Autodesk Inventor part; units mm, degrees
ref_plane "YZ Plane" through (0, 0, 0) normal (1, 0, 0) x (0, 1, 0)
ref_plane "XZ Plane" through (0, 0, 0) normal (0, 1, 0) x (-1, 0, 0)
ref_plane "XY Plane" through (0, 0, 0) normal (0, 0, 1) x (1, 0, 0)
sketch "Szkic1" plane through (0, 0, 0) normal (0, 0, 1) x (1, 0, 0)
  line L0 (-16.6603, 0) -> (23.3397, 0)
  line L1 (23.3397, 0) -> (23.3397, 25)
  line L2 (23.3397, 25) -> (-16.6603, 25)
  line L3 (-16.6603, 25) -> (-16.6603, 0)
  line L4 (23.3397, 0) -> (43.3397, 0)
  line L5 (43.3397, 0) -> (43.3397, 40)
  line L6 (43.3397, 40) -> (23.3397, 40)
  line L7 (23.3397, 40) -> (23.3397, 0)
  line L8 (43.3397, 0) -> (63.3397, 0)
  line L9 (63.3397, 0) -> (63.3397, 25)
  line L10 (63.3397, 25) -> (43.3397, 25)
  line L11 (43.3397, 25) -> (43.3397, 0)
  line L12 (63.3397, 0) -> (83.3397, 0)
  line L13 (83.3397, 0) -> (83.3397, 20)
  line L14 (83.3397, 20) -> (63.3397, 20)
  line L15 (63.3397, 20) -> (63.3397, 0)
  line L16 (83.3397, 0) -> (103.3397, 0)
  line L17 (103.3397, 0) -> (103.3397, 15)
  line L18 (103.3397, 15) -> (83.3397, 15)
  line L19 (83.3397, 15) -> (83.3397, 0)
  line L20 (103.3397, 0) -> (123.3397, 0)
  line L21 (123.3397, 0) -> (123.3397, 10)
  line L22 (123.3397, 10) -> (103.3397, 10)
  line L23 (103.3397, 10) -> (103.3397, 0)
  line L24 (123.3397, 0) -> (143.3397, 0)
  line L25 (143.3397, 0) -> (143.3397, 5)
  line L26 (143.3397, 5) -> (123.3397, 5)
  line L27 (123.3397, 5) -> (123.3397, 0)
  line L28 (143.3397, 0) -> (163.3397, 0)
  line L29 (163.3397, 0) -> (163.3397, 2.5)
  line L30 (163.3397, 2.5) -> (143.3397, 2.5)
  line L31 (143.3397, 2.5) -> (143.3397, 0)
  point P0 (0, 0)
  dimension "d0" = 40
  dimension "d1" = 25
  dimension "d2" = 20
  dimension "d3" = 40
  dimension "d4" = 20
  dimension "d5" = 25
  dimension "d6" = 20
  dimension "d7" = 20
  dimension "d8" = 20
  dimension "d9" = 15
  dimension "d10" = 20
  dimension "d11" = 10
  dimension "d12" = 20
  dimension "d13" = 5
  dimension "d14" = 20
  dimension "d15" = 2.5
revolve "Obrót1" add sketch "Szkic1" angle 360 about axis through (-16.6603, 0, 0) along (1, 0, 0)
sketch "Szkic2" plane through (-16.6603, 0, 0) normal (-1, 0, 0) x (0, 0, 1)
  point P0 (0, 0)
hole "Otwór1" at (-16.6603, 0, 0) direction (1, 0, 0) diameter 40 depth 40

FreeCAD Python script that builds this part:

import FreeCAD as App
import Part
import Sketcher

doc = App.newDocument("Part")
body = doc.addObject("PartDesign::Body", "Body")

sketch1 = body.newObject("Sketcher::SketchObject", "Sketch")
sketch1.AttachmentSupport = (doc.getObject("XY_Plane"), [""])
sketch1.MapMode = "FlatFace"
sketch1.addGeometry([
    Part.LineSegment(App.Vector(-16.7, 25, 0), App.Vector(-16.7, 0, 0)),
    Part.LineSegment(App.Vector(-16.7, 0, 0), App.Vector(163.3, 0, 0)),
    Part.LineSegment(App.Vector(163.3, 0, 0), App.Vector(163.3, 2.5, 0)),
    Part.LineSegment(App.Vector(163.3, 2.5, 0), App.Vector(143.3, 2.5, 0)),
    Part.LineSegment(App.Vector(143.3, 2.5, 0), App.Vector(143.3, 5, 0)),
    Part.LineSegment(App.Vector(143.3, 5, 0), App.Vector(123.3, 5, 0)),
    Part.LineSegment(App.Vector(123.3, 5, 0), App.Vector(123.3, 10, 0)),
    Part.LineSegment(App.Vector(123.3, 10, 0), App.Vector(103.3, 10, 0)),
    Part.LineSegment(App.Vector(103.3, 10, 0), App.Vector(103.3, 15, 0)),
    Part.LineSegment(App.Vector(103.3, 15, 0), App.Vector(83.3, 15, 0)),
    Part.LineSegment(App.Vector(83.3, 15, 0), App.Vector(83.3, 20, 0)),
    Part.LineSegment(App.Vector(83.3, 20, 0), App.Vector(63.3, 20, 0)),
    Part.LineSegment(App.Vector(63.3, 20, 0), App.Vector(63.3, 25, 0)),
    Part.LineSegment(App.Vector(63.3, 25, 0), App.Vector(43.3, 25, 0)),
    Part.LineSegment(App.Vector(43.3, 25, 0), App.Vector(43.3, 40, 0)),
    Part.LineSegment(App.Vector(43.3, 40, 0), App.Vector(23.3, 40, 0)),
    Part.LineSegment(App.Vector(23.3, 40, 0), App.Vector(23.3, 25, 0)),
    Part.LineSegment(App.Vector(23.3, 25, 0), App.Vector(-16.7, 25, 0)),
], False)
sketch1.addConstraint([
    Sketcher.Constraint("Coincident", 0, 2, 1, 1),
    Sketcher.Constraint("Coincident", 1, 2, 2, 1),
    Sketcher.Constraint("Coincident", 2, 2, 3, 1),
    Sketcher.Constraint("Coincident", 3, 2, 4, 1),
    Sketcher.Constraint("Coincident", 4, 2, 5, 1),
    Sketcher.Constraint("Coincident", 5, 2, 6, 1),
    Sketcher.Constraint("Coincident", 6, 2, 7, 1),
    Sketcher.Constraint("Coincident", 7, 2, 8, 1),
    Sketcher.Constraint("Coincident", 8, 2, 9, 1),
    Sketcher.Constraint("Coincident", 9, 2, 10, 1),
    Sketcher.Constraint("Coincident", 10, 2, 11, 1),
    Sketcher.Constraint("Coincident", 11, 2, 12, 1),
    Sketcher.Constraint("Coincident", 12, 2, 13, 1),
    Sketcher.Constraint("Coincident", 13, 2, 14, 1),
    Sketcher.Constraint("Coincident", 14, 2, 15, 1),
    Sketcher.Constraint("Coincident", 15, 2, 16, 1),
    Sketcher.Constraint("Coincident", 16, 2, 17, 1),
    Sketcher.Constraint("Coincident", 17, 2, 0, 1),
    Sketcher.Constraint("Vertical", 0),
    Sketcher.Constraint("Horizontal", 1),
    Sketcher.Constraint("Vertical", 2),
    Sketcher.Constraint("Horizontal", 3),
    Sketcher.Constraint("Vertical", 4),
    Sketcher.Constraint("Horizontal", 5),
    Sketcher.Constraint("Vertical", 6),
    Sketcher.Constraint("Horizontal", 7),
    Sketcher.Constraint("Vertical", 8),
    Sketcher.Constraint("Horizontal", 9),
    Sketcher.Constraint("Vertical", 10),
    Sketcher.Constraint("Horizontal", 11),
    Sketcher.Constraint("Vertical", 12),
    Sketcher.Constraint("Horizontal", 13),
    Sketcher.Constraint("Vertical", 14),
    Sketcher.Constraint("Horizontal", 15),
    Sketcher.Constraint("Vertical", 16),
    Sketcher.Constraint("Horizontal", 17),
    Sketcher.Constraint("PointOnObject", 0, 2, -1),
    Sketcher.Constraint("Horizontal", 13, 2, 16, 2),
    Sketcher.Constraint("Equal", 3, 5),
    Sketcher.Constraint("Equal", 5, 7),
    Sketcher.Constraint("Equal", 7, 9),
    Sketcher.Constraint("Equal", 9, 11),
    Sketcher.Constraint("Equal", 11, 13),
    Sketcher.Constraint("Equal", 13, 15),
    Sketcher.Constraint("Equal", 2, 4),
    Sketcher.Constraint("Equal", 6, 8),
    Sketcher.Constraint("Equal", 8, 10),
    Sketcher.Constraint("Equal", 10, 12),
    Sketcher.Constraint("DistanceX", 3, 2, 3, 1, 20.0),
    Sketcher.Constraint("DistanceX", 17, 2, 17, 1, 40.0),
    Sketcher.Constraint("DistanceY", 0, 2, 0, 1, 25.0),
    Sketcher.Constraint("DistanceY", 6, 1, 6, 2, 5.0),
    Sketcher.Constraint("DistanceY", 14, 1, 14, 2, 15.0),
    Sketcher.Constraint("DistanceX", 0, 2, -1, 1, 16.6603),
])
revolution = body.newObject("PartDesign::Revolution", "Revolution")
revolution.Profile = sketch1
revolution.ReferenceAxis = (sketch1, ["H_Axis"])
revolution.Angle = 360

sketch2 = body.newObject("Sketcher::SketchObject", "Sketch001")
sketch2.AttachmentSupport = (doc.getObject("YZ_Plane"), [""])
sketch2.MapMode = "FlatFace"
sketch2.AttachmentOffset = App.Placement(App.Vector(0, 0, -16.6603), App.Rotation())
sketch2.addGeometry(Part.Circle(App.Vector(0, 0, 0), App.Vector(0, 0, 1), 20), False)
sketch2.addConstraint([
    Sketcher.Constraint("Coincident", 0, 3, -1, 1),
    Sketcher.Constraint("Diameter", 0, 40.0),
])
doc.recompute()
hole = body.newObject("PartDesign::Hole", "Hole")
hole.Profile = sketch2
hole.ThreadType = "None"
hole.Diameter = 40
hole.DepthType = "Dimension"
hole.Depth = 40
hole.DrillPoint = "Flat"
hole.Reversed = True

doc.recompute()
